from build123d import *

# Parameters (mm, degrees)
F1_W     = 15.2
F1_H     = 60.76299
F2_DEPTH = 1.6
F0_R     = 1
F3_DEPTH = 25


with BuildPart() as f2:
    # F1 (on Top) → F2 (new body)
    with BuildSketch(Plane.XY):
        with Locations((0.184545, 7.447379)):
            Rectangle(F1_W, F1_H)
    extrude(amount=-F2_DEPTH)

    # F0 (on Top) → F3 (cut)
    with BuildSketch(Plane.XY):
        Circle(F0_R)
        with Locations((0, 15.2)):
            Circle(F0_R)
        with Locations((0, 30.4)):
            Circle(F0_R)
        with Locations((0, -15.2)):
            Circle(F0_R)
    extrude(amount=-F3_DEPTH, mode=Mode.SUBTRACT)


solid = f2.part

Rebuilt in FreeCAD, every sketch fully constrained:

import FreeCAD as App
import Part
import Sketcher
from FreeCAD import Vector

doc = App.newDocument("Part")
params = doc.addObject("Spreadsheet::Sheet", "Params")
for row, (alias, value) in enumerate([
    ("sketch1_width", "15.2 mm"),
    ("pad1_length", "1.6 mm"),
    ("sketch2_diameter", "2 mm"),
    ("pocket1_length", "25 mm"),
], start=1):
    params.set(f"A{row}", alias)
    params.set(f"B{row}", "=" + value)
    params.setAlias(f"B{row}", alias)

body = doc.addObject("PartDesign::Body", "Body")

# Sketch on XY plane
sketch1 = doc.addObject("Sketcher::SketchObject", "Sketch")
body.addObject(sketch1)
sketch1.AttachmentSupport = (doc.XY_Plane, [""])
sketch1.MapMode = "FlatFace"
sketch1.addGeometry([
    Part.LineSegment(Vector(-7.415455, 37.828874, 0), Vector(-7.415455, -22.934116, 0)),
    Part.LineSegment(Vector(-7.415455, -22.934116, 0), Vector(7.784545, -22.934116, 0)),
    Part.LineSegment(Vector(7.784545, -22.934116, 0), Vector(7.784545, 37.828874, 0)),
    Part.LineSegment(Vector(7.784545, 37.828874, 0), Vector(-7.415455, 37.828874, 0)),
], False)
sketch1.addConstraint([
    Sketcher.Constraint("Coincident", 0, 2, 1, 1),
    Sketcher.Constraint("Coincident", 1, 2, 2, 1),
    Sketcher.Constraint("Coincident", 2, 2, 3, 1),
    Sketcher.Constraint("Coincident", 3, 2, 0, 1),
    Sketcher.Constraint("Vertical", 0),
    Sketcher.Constraint("Horizontal", 1),
    Sketcher.Constraint("Vertical", 2),
    Sketcher.Constraint("Horizontal", 3),
    Sketcher.Constraint("DistanceX", 1, 1, 1, 2, 15.2),
    Sketcher.Constraint("DistanceY", 0, 2, 0, 1, 60.76299),
    Sketcher.Constraint("DistanceX", 0, 2, -1, 1, 7.415455),
    Sketcher.Constraint("DistanceY", 0, 2, -1, 1, 22.934116),
])
sketch1.setExpression("Constraints[8]", "Params.sketch1_width")
pad1 = doc.addObject("PartDesign::Pad", "Pad")
body.addObject(pad1)
pad1.Profile = sketch1
pad1.setExpression("Length", "Params.pad1_length")
pad1.Reversed = True

# Sketch on XY plane
sketch2 = doc.addObject("Sketcher::SketchObject", "Sketch001")
body.addObject(sketch2)
sketch2.AttachmentSupport = (doc.XY_Plane, [""])
sketch2.MapMode = "FlatFace"
sketch2.addGeometry([
    Part.Circle(Vector(0, 0, 0), Vector(0, 0, 1), 1),
    Part.Circle(Vector(0, 15.2, 0), Vector(0, 0, 1), 1),
    Part.Circle(Vector(0, 30.4, 0), Vector(0, 0, 1), 1),
    Part.Circle(Vector(0, -15.2, 0), Vector(0, 0, 1), 1),
], False)
sketch2.addConstraint([
    Sketcher.Constraint("Coincident", 0, 3, -1, 1),
    Sketcher.Constraint("Equal", 0, 1),
    Sketcher.Constraint("Equal", 1, 2),
    Sketcher.Constraint("Equal", 2, 3),
    Sketcher.Constraint("Symmetric", 1, 3, 3, 3, -1, 1),
    Sketcher.Constraint("PointOnObject", 1, 3, -2),
    Sketcher.Constraint("PointOnObject", 2, 3, -2),
    Sketcher.Constraint("Diameter", 0, 2.0),
    Sketcher.Constraint("DistanceY", -1, 1, 1, 3, 15.2),
    Sketcher.Constraint("DistanceY", -1, 1, 2, 3, 30.4),
])
sketch2.setExpression("Constraints[7]", "Params.sketch2_diameter")
pocket1 = doc.addObject("PartDesign::Pocket", "Pocket")
body.addObject(pocket1)
pocket1.Profile = sketch2
pocket1.setExpression("Length", "Params.pocket1_length")

doc.recompute()
